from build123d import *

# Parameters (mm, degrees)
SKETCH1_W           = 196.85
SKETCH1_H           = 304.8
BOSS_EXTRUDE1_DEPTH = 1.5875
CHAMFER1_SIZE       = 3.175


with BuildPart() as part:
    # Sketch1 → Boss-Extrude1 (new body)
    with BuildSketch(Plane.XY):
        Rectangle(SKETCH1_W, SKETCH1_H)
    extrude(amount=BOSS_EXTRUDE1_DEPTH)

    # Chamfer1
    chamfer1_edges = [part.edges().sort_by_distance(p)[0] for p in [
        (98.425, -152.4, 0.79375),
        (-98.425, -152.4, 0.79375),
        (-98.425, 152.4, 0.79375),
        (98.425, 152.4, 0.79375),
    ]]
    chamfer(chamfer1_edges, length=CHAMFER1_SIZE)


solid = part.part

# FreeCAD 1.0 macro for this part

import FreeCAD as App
import Part
import Sketcher

V = App.Vector
Q = App.Units.Quantity


def edges_at(feature, points):
    """Names of the edges that pass closest to the given points."""
    edges = feature.Shape.Edges
    near = lambda p: min(range(len(edges)), key=lambda i: edges[i].distToShape(Part.Vertex(*p))[0])
    return sorted({f"Edge{near(p) + 1}" for p in points})

doc = App.newDocument("Part")
body = doc.addObject("PartDesign::Body", "Body")

# Sketch on XY plane
sketch1 = body.newObject("Sketcher::SketchObject", "Sketch")
sketch1.AttachmentSupport = (doc.getObject("XY_Plane"), [""])
sketch1.MapMode = "FlatFace"
sketch1.addGeometry([
    Part.LineSegment(V(-98.425, 152.4, 0), V(-98.425, -152.4, 0)),
    Part.LineSegment(V(-98.425, -152.4, 0), V(98.425, -152.4, 0)),
    Part.LineSegment(V(98.425, -152.4, 0), V(98.425, 152.4, 0)),
    Part.LineSegment(V(98.425, 152.4, 0), V(-98.425, 152.4, 0)),
], False)
sketch1.addConstraint([
    Sketcher.Constraint("Coincident", 0, 2, 1, 1),
    Sketcher.Constraint("Coincident", 1, 2, 2, 1),
    Sketcher.Constraint("Coincident", 2, 2, 3, 1),
    Sketcher.Constraint("Coincident", 3, 2, 0, 1),
    Sketcher.Constraint("Vertical", 0),
    Sketcher.Constraint("Horizontal", 1),
    Sketcher.Constraint("Vertical", 2),
    Sketcher.Constraint("Horizontal", 3),
    Sketcher.Constraint("Symmetric", 0, 2, 2, 2, -1, 1),
    Sketcher.Constraint("DistanceY", 0, 2, 0, 1, Q("12 in")),
    Sketcher.Constraint("DistanceX", 1, 1, 1, 2, Q("7.75 in")),
])
pad1 = body.newObject("PartDesign::Pad", "Pad")
pad1.Profile = sketch1
pad1.Length = Q("0.0625 in")
doc.recompute()

chamfer = body.newObject("PartDesign::Chamfer", "Chamfer")
chamfer.Base = (pad1, edges_at(pad1, [
    (98.425, -152.4, 0.794),
    (-98.425, -152.4, 0.794),
    (-98.425, 152.4, 0.794),
    (98.425, 152.4, 0.794),
]))
chamfer.Size = Q("0.125 in")

doc.recompute()
